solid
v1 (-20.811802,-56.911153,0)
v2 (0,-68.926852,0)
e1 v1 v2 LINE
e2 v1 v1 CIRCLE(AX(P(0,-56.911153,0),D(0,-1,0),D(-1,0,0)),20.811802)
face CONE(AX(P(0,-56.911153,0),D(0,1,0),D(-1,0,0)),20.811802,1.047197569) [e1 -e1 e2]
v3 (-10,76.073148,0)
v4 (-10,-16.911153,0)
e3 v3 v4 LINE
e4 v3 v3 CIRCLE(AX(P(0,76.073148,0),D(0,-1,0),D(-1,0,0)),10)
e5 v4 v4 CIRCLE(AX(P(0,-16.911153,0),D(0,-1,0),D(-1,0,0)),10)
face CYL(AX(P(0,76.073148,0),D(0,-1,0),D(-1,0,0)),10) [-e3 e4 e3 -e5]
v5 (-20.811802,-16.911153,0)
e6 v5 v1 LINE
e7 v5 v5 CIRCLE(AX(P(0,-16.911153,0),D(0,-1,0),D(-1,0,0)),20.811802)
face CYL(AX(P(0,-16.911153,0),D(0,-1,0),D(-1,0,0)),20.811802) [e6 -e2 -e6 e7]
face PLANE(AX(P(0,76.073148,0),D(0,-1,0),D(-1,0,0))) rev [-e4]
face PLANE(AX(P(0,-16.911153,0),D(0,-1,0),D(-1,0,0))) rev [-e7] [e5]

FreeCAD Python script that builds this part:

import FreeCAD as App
import Part
import Sketcher
from FreeCAD import Vector
Q = App.Units.Quantity


def add_polygon(sketch, points):
    """Adds a closed chain of lines whose ends are joined by coincident constraints."""
    first, n = sketch.GeometryCount, len(points)
    for a, b in zip(points, points[1:] + points[:1]):
        sketch.addGeometry(Part.LineSegment(App.Vector(*a, 0), App.Vector(*b, 0)), False)
    for i in range(n):
        sketch.addConstraint(Sketcher.Constraint("Coincident", first + i, 2, first + (i + 1) % n, 1))

doc = App.newDocument("Part")
params = doc.addObject("Spreadsheet::Sheet", "Params")
for row, (alias, value) in enumerate([
    ("sketch1_width", "10 mm"),
    ("sketch1_height", "40 mm"),
    ("sketch1_height2", "145 mm"),
    ("revolution_angle", "360 deg"),
], start=1):
    params.set(f"A{row}", alias)
    params.set(f"B{row}", "=" + value)
    params.setAlias(f"B{row}", alias)

body = doc.addObject("PartDesign::Body", "Body")

sketch1 = doc.addObject("Sketcher::SketchObject", "Sketch")
body.addObject(sketch1)
sketch1.AttachmentSupport = (doc.XY_Plane, [""])
sketch1.MapMode = "FlatFace"
add_polygon(sketch1, [(0, 76.073148), (-10, 76.073148), (-10, -16.911153), (-20.811802, -16.911153), (-20.811802, -56.911153), (0, -68.926852)])
sketch1.addConstraint(Sketcher.Constraint("Horizontal", 0))
sketch1.addConstraint(Sketcher.Constraint("Vertical", 1))
sketch1.addConstraint(Sketcher.Constraint("Horizontal", 2))
sketch1.addConstraint(Sketcher.Constraint("Vertical", 3))
sketch1.addConstraint(Sketcher.Constraint("Vertical", 5))
sketch1.addConstraint(Sketcher.Constraint("PointOnObject", 4, 2, -2))
sketch1.addConstraint(Sketcher.Constraint("DistanceX", 0, 2, 0, 1, 10.0))
sketch1.addConstraint(Sketcher.Constraint("DistanceY", 3, 2, 3, 1, 40.0))
sketch1.addConstraint(Sketcher.Constraint("DistanceY", 5, 1, 5, 2, 145.0))
sketch1.addConstraint(Sketcher.Constraint("Angle", 4, Q("-29.999999 deg")))
sketch1.addConstraint(Sketcher.Constraint("DistanceY", 1, 2, 1, 1, 92.984301))
sketch1.addConstraint(Sketcher.Constraint("DistanceY", -1, 1, 0, 2, 76.073148))
sketch1.setExpression("Constraints[12]", "Params.sketch1_width")
sketch1.setExpression("Constraints[13]", "Params.sketch1_height")
sketch1.setExpression("Constraints[14]", "Params.sketch1_height2")
revolution = doc.addObject("PartDesign::Revolution", "Revolution")
body.addObject(revolution)
revolution.Profile = sketch1
revolution.ReferenceAxis = (sketch1, ["V_Axis"])
revolution.setExpression("Angle", "Params.revolution_angle")

doc.recompute()
